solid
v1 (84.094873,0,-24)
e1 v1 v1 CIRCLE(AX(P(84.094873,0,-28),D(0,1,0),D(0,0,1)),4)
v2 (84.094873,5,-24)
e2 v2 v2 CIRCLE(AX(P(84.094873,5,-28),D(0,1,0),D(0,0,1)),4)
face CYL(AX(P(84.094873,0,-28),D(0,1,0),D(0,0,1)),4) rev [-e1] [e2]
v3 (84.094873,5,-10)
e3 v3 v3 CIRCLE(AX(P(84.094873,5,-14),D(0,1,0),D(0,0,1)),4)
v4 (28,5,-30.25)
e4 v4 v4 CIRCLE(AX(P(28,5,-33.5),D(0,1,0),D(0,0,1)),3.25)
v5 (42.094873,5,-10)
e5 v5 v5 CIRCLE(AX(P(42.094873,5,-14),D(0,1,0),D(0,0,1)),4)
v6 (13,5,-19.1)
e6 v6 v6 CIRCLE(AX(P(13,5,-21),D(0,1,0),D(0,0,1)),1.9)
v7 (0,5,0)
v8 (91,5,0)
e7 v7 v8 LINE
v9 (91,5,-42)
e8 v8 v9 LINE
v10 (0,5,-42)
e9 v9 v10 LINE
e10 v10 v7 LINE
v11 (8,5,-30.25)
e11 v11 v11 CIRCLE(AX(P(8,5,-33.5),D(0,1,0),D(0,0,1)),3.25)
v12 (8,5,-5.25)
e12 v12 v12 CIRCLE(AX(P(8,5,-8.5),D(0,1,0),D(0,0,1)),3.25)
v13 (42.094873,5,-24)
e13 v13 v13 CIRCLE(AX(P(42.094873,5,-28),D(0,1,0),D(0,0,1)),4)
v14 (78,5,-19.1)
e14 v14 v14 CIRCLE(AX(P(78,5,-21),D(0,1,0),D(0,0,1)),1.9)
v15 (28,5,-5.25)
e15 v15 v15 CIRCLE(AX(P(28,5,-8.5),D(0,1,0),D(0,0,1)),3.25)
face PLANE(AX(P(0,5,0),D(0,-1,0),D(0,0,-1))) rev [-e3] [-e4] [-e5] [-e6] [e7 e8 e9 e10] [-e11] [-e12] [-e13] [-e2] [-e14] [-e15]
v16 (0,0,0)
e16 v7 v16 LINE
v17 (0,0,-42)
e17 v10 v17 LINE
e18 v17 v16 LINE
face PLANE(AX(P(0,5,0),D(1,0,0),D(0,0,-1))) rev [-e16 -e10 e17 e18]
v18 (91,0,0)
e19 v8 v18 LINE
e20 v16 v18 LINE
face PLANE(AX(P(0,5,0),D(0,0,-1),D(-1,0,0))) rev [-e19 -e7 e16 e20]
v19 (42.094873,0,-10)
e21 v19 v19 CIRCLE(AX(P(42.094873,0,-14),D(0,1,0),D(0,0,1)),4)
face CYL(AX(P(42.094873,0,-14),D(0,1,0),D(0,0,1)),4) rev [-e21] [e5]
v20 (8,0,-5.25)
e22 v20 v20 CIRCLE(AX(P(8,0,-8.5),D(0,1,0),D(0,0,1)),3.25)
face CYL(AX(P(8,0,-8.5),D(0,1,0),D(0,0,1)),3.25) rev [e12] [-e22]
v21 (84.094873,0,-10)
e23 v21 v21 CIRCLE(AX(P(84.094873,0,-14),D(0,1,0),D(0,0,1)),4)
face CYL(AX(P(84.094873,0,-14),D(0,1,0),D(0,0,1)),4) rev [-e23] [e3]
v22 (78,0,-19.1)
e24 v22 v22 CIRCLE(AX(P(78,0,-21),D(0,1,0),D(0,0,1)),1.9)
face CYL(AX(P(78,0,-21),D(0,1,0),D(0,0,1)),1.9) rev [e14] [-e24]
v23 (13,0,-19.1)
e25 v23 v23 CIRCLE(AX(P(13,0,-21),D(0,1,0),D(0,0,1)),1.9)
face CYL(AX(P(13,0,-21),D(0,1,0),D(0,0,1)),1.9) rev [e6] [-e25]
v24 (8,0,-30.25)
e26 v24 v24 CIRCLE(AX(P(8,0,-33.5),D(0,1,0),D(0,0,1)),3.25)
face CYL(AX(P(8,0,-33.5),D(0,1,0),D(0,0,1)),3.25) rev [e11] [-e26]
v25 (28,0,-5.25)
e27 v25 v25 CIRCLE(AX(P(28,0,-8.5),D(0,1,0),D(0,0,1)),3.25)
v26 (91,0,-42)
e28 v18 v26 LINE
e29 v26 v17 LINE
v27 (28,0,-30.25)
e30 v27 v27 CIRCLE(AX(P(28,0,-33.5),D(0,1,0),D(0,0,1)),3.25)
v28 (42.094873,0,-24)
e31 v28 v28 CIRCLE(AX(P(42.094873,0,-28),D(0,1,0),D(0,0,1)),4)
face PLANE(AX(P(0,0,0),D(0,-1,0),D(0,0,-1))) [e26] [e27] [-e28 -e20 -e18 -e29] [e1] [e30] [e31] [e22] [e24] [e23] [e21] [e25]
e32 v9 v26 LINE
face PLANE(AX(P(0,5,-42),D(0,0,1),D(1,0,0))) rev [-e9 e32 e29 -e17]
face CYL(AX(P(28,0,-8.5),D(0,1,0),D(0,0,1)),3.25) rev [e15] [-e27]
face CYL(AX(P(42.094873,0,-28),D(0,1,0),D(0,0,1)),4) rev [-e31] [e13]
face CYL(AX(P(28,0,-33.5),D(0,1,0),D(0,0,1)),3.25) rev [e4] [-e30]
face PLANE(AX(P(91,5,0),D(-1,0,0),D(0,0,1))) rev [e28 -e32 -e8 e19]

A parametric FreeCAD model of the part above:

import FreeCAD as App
import Part
import Sketcher


def add_polygon(sketch, points):
    """Adds a closed chain of lines whose ends are joined by coincident constraints."""
    first, n = sketch.GeometryCount, len(points)
    for a, b in zip(points, points[1:] + points[:1]):
        sketch.addGeometry(Part.LineSegment(App.Vector(*a, 0), App.Vector(*b, 0)), False)
    for i in range(n):
        sketch.addConstraint(Sketcher.Constraint("Coincident", first + i, 2, first + (i + 1) % n, 1))

doc = App.newDocument("Part")
params = doc.addObject("Spreadsheet::Sheet", "Params")
for row, (alias, value) in enumerate([
    ("sketch1_width", "91 mm"),
    ("sketch1_height", "42 mm"),
    ("pad1_length", "5 mm"),
    ("sketch2_diameter", "3.5 mm"),
    ("sketch2_diameter2", "4.5 mm"),
    ("sketch2_diameter3", "3.8 mm"),
    ("pocket1_length", "5 mm"),
    ("sketch3_diameter", "8 mm"),
    ("sketch3_diameter2", "6.5 mm"),
    ("pocket2_length", "5 mm"),
], start=1):
    params.set(f"A{row}", alias)
    params.set(f"B{row}", "=" + value)
    params.setAlias(f"B{row}", alias)

body = doc.addObject("PartDesign::Body", "Body")

# Sketch on XZ plane
sketch1 = body.newObject("Sketcher::SketchObject", "Sketch")
sketch1.AttachmentSupport = (doc.getObject("XZ_Plane"), [""])
sketch1.MapMode = "FlatFace"
add_polygon(sketch1, [(0, -42), (0, 0), (91, 0), (91, -42)])  # lines 0-3
sketch1.addConstraint(Sketcher.Constraint("Vertical", 0))
sketch1.addConstraint(Sketcher.Constraint("Horizontal", 1))
sketch1.addConstraint(Sketcher.Constraint("Vertical", 2))
sketch1.addConstraint(Sketcher.Constraint("Horizontal", 3))
sketch1.addConstraint(Sketcher.Constraint("Coincident", 0, 2, -1, 1))
sketch1.addConstraint(Sketcher.Constraint("DistanceX", 1, 1, 1, 2, 91.0))
sketch1.addConstraint(Sketcher.Constraint("DistanceY", 0, 1, 0, 2, 42.0))
sketch1.setExpression("Constraints[9]", "Params.sketch1_width")
sketch1.setExpression("Constraints[10]", "Params.sketch1_height")
pad1 = body.newObject("PartDesign::Pad", "Pad")
pad1.Profile = sketch1
pad1.setExpression("Length", "Params.pad1_length")
pad1.Reversed = True

# Sketch on XZ plane
sketch2 = body.newObject("Sketcher::SketchObject", "Sketch001")
sketch2.AttachmentSupport = (doc.getObject("XZ_Plane"), [""])
sketch2.MapMode = "FlatFace"
sketch2.AttachmentOffset = App.Placement(App.Vector(0, 0, -5), App.Rotation())
sketch2.addGeometry(Part.Circle(App.Vector(28, -33.5, 0), App.Vector(0, 0, 1), 1.8), False)
sketch2.addGeometry(Part.Circle(App.Vector(28, -8.5, 0), App.Vector(0, 0, 1), 1.8), False)
sketch2.addGeometry(Part.Circle(App.Vector(8, -8.5, 0), App.Vector(0, 0, 1), 1.8), False)
sketch2.addGeometry(Part.Circle(App.Vector(8, -33.5, 0), App.Vector(0, 0, 1), 1.8), False)
sketch2.addGeometry(Part.Circle(App.Vector(42.1, -28, 0), App.Vector(0, 0, 1), 2.2), False)
sketch2.addGeometry(Part.Circle(App.Vector(42.1, -14, 0), App.Vector(0, 0, 1), 2.2), False)
sketch2.addGeometry(Part.Circle(App.Vector(84.1, -14, 0), App.Vector(0, 0, 1), 2.2), False)
sketch2.addGeometry(Part.Circle(App.Vector(84.1, -28, 0), App.Vector(0, 0, 1), 2.2), False)
sketch2.addGeometry(Part.Circle(App.Vector(78, -21, 0), App.Vector(0, 0, 1), 1.9), False)
sketch2.addGeometry(Part.Circle(App.Vector(13, -21, 0), App.Vector(0, 0, 1), 1.9), False)
sketch2.addConstraint(Sketcher.Constraint("Equal", 0, 1))
sketch2.addConstraint(Sketcher.Constraint("Equal", 1, 2))
sketch2.addConstraint(Sketcher.Constraint("Equal", 2, 3))
sketch2.addConstraint(Sketcher.Constraint("Equal", 4, 5))
sketch2.addConstraint(Sketcher.Constraint("Equal", 5, 6))
sketch2.addConstraint(Sketcher.Constraint("Equal", 6, 7))
sketch2.addConstraint(Sketcher.Constraint("Equal", 8, 9))
sketch2.addConstraint(Sketcher.Constraint("Horizontal", 1, 3, 2, 3))
sketch2.addConstraint(Sketcher.Constraint("Horizontal", 0, 3, 3, 3))
sketch2.addConstraint(Sketcher.Constraint("Horizontal", 5, 3, 6, 3))
sketch2.addConstraint(Sketcher.Constraint("Horizontal", 4, 3, 7, 3))
sketch2.addConstraint(Sketcher.Constraint("Horizontal", 8, 3, 9, 3))
sketch2.addConstraint(Sketcher.Constraint("Vertical", 0, 3, 1, 3))
sketch2.addConstraint(Sketcher.Constraint("Vertical", 2, 3, 3, 3))
sketch2.addConstraint(Sketcher.Constraint("Vertical", 4, 3, 5, 3))
sketch2.addConstraint(Sketcher.Constraint("Vertical", 6, 3, 7, 3))
sketch2.addConstraint(Sketcher.Constraint("Diameter", 0, 3.5))
sketch2.addConstraint(Sketcher.Constraint("Diameter", 4, 4.5))
sketch2.addConstraint(Sketcher.Constraint("Diameter", 8, 3.8))
sketch2.addConstraint(Sketcher.Constraint("DistanceX", -1, 1, 0, 3, 28.0))
sketch2.addConstraint(Sketcher.Constraint("DistanceX", -1, 1, 2, 3, 8.0))
sketch2.addConstraint(Sketcher.Constraint("DistanceY", 4, 3, -1, 1, 28.0))
sketch2.addConstraint(Sketcher.Constraint("DistanceY", 5, 3, -1, 1, 14.0))
sketch2.addConstraint(Sketcher.Constraint("DistanceX", -1, 1, 8, 3, 78.0))
sketch2.addConstraint(Sketcher.Constraint("DistanceY", 8, 3, -1, 1, 21.0))
sketch2.addConstraint(Sketcher.Constraint("DistanceX", -1, 1, 9, 3, 13.0))
sketch2.addConstraint(Sketcher.Constraint("DistanceY", 0, 3, 1, 3, 25.0))
sketch2.addConstraint(Sketcher.Constraint("DistanceX", 5, 3, 6, 3, 42.0))
sketch2.addConstraint(Sketcher.Constraint("DistanceY", 0, 3, -1, 1, 33.5))
sketch2.addConstraint(Sketcher.Constraint("DistanceX", -1, 1, 4, 3, 42.094873))
sketch2.setExpression("Constraints[16]", "Params.sketch2_diameter")
sketch2.setExpression("Constraints[17]", "Params.sketch2_diameter2")
sketch2.setExpression("Constraints[18]", "Params.sketch2_diameter3")
pocket1 = body.newObject("PartDesign::Pocket", "Pocket")
pocket1.Profile = sketch2
pocket1.setExpression("Length", "Params.pocket1_length")
pocket1.Reversed = True

# Sketch on XZ plane
sketch3 = body.newObject("Sketcher::SketchObject", "Sketch002")
sketch3.AttachmentSupport = (doc.getObject("XZ_Plane"), [""])
sketch3.MapMode = "FlatFace"
sketch3.AttachmentOffset = App.Placement(App.Vector(0, 0, -5), App.Rotation())
sketch3.addGeometry(Part.Circle(App.Vector(84.1, -28, 0), App.Vector(0, 0, 1), 4), False)
sketch3.addGeometry(Part.Circle(App.Vector(84.1, -14, 0), App.Vector(0, 0, 1), 4), False)
sketch3.addGeometry(Part.Circle(App.Vector(42.1, -14, 0), App.Vector(0, 0, 1), 4), False)
sketch3.addGeometry(Part.Circle(App.Vector(42.1, -28, 0), App.Vector(0, 0, 1), 4), False)
sketch3.addGeometry(Part.Circle(App.Vector(28, -33.5, 0), App.Vector(0, 0, 1), 3.2), False)
sketch3.addGeometry(Part.Circle(App.Vector(28, -8.5, 0), App.Vector(0, 0, 1), 3.2), False)
sketch3.addGeometry(Part.Circle(App.Vector(8, -8.5, 0), App.Vector(0, 0, 1), 3.2), False)
sketch3.addGeometry(Part.Circle(App.Vector(8, -33.5, 0), App.Vector(0, 0, 1), 3.2), False)
sketch3.addConstraint(Sketcher.Constraint("Equal", 0, 1))
sketch3.addConstraint(Sketcher.Constraint("Equal", 1, 2))
sketch3.addConstraint(Sketcher.Constraint("Equal", 2, 3))
sketch3.addConstraint(Sketcher.Constraint("Equal", 4, 5))
sketch3.addConstraint(Sketcher.Constraint("Equal", 5, 6))
sketch3.addConstraint(Sketcher.Constraint("Equal", 6, 7))
sketch3.addConstraint(Sketcher.Constraint("Horizontal", 1, 3, 2, 3))
sketch3.addConstraint(Sketcher.Constraint("Horizontal", 0, 3, 3, 3))
sketch3.addConstraint(Sketcher.Constraint("Horizontal", 5, 3, 6, 3))
sketch3.addConstraint(Sketcher.Constraint("Horizontal", 4, 3, 7, 3))
sketch3.addConstraint(Sketcher.Constraint("Vertical", 0, 3, 1, 3))
sketch3.addConstraint(Sketcher.Constraint("Vertical", 2, 3, 3, 3))
sketch3.addConstraint(Sketcher.Constraint("Vertical", 4, 3, 5, 3))
sketch3.addConstraint(Sketcher.Constraint("Vertical", 6, 3, 7, 3))
sketch3.addConstraint(Sketcher.Constraint("Diameter", 0, 8.0))
sketch3.addConstraint(Sketcher.Constraint("Diameter", 4, 6.5))
sketch3.addConstraint(Sketcher.Constraint("DistanceY", 0, 3, -1, 1, 28.0))
sketch3.addConstraint(Sketcher.Constraint("DistanceY", 1, 3, -1, 1, 14.0))
sketch3.addConstraint(Sketcher.Constraint("DistanceX", -1, 1, 4, 3, 28.0))
sketch3.addConstraint(Sketcher.Constraint("DistanceX", -1, 1, 6, 3, 8.0))
sketch3.addConstraint(Sketcher.Constraint("DistanceX", 2, 3, 1, 3, 42.0))
sketch3.addConstraint(Sketcher.Constraint("DistanceY", 4, 3, 5, 3, 25.0))
sketch3.addConstraint(Sketcher.Constraint("DistanceY", 4, 3, -1, 1, 33.5))
sketch3.addConstraint(Sketcher.Constraint("DistanceX", -1, 1, 0, 3, 84.094873))
sketch3.setExpression("Constraints[14]", "Params.sketch3_diameter")
sketch3.setExpression("Constraints[15]", "Params.sketch3_diameter2")
pocket2 = body.newObject("PartDesign::Pocket", "Pocket001")
pocket2.Profile = sketch3
pocket2.setExpression("Length", "Params.pocket2_length")
pocket2.Reversed = True

doc.recompute()
